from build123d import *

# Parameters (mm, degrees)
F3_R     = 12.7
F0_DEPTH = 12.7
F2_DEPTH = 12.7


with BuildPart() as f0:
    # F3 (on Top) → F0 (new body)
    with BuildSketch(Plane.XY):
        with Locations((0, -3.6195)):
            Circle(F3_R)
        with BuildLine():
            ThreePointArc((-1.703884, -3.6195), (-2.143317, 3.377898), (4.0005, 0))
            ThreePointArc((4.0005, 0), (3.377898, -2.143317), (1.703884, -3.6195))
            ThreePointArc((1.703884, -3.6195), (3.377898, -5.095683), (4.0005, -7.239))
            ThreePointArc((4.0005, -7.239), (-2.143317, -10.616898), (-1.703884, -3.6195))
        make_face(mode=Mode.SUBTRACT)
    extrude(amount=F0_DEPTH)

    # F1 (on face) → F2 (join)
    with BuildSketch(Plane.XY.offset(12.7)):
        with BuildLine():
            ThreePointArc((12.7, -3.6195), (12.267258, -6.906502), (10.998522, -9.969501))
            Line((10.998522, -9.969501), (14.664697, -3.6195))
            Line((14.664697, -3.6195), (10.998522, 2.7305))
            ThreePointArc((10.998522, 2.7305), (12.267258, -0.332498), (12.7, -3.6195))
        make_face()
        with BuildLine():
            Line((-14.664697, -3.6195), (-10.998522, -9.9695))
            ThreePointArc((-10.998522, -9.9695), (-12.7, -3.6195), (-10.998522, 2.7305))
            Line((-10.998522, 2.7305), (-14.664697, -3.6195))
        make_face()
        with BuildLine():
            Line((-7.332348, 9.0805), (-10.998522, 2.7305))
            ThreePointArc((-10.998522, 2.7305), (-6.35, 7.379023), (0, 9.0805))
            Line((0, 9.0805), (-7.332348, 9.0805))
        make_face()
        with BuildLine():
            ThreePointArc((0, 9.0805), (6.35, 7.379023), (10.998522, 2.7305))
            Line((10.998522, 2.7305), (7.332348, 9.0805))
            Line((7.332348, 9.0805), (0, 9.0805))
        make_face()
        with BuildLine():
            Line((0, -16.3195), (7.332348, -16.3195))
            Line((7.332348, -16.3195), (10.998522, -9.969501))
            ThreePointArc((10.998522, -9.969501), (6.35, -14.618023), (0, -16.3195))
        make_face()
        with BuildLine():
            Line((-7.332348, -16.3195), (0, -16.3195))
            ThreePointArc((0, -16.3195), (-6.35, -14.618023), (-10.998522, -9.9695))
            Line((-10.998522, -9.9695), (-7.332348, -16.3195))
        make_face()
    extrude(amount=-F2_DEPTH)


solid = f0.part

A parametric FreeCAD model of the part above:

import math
import FreeCAD as App
import Part
import Sketcher

V = App.Vector
Q = App.Units.Quantity

doc = App.newDocument("Part")
params = doc.addObject("Spreadsheet::Sheet", "Params")
for row, (alias, value) in enumerate([
    ("sketch1_diameter", "1 in"),
    ("pad1_length", "0.5 in"),
    ("sketch2_radius", "0.4999999 in"),
    ("pad2_length", "0.5 in"),
], start=1):
    params.set(f"A{row}", alias)
    params.set(f"B{row}", "=" + value)
    params.setAlias(f"B{row}", alias)

body = doc.addObject("PartDesign::Body", "Body")

sketch1 = body.newObject("Sketcher::SketchObject", "Sketch")
sketch1.AttachmentSupport = (doc.getObject("XY_Plane"), [""])
sketch1.MapMode = "FlatFace"
sketch1.addGeometry([
    Part.Circle(V(0, -3.6, 0), V(0, 0, 1), 12.7),
    Part.ArcOfCircle(Part.Circle(V(0, -7.2, 0), V(0, 0, 1), 4), math.radians(115), math.radians(360)),
    Part.ArcOfCircle(Part.Circle(V(0, 0, 0), V(0, 0, 1), 4), math.radians(0), math.radians(245)),
    Part.ArcOfCircle(Part.Circle(V(0, 0, 0), V(0, 0, 1), 4), math.radians(-65), math.radians(0)),
    Part.ArcOfCircle(Part.Circle(V(0, -7.2, 0), V(0, 0, 1), 4), math.radians(0), math.radians(65)),
], False)
sketch1.addConstraint([
    Sketcher.Constraint("Coincident", 1, 1, 2, 2),
    Sketcher.Constraint("Tangent", 2, 1, 3, 2),
    Sketcher.Constraint("Coincident", 3, 1, 4, 2),
    Sketcher.Constraint("Tangent", 4, 1, 1, 2),
    Sketcher.Constraint("Coincident", 2, 3, -1, 1),
    Sketcher.Constraint("Equal", 1, 2),
    Sketcher.Constraint("Equal", 2, 3),
    Sketcher.Constraint("Equal", 3, 4),
    Sketcher.Constraint("PointOnObject", 0, 3, -2),
    Sketcher.Constraint("PointOnObject", 1, 3, -2),
    Sketcher.Constraint("PointOnObject", 2, 1, -1),
    Sketcher.Constraint("Horizontal", 0, 3, 1, 1),
    Sketcher.Constraint("Horizontal", 1, 3, 4, 1),
    Sketcher.Constraint("Diameter", 0, Q("1 in")),
    Sketcher.Constraint("Radius", 1, Q("0.1575 in")),
    Sketcher.Constraint("DistanceY", 1, 3, -1, 1, Q("0.285 in")),
])
sketch1.setExpression("Constraints[13]", "Params.sketch1_diameter")
pad1 = body.newObject("PartDesign::Pad", "Pad")
pad1.Profile = sketch1
pad1.setExpression("Length", "Params.pad1_length")

sketch2 = body.newObject("Sketcher::SketchObject", "Sketch001")
sketch2.AttachmentSupport = (doc.getObject("XY_Plane"), [""])
sketch2.MapMode = "FlatFace"
sketch2.AttachmentOffset = App.Placement(V(0, 0, 0.5 * 25.4), App.Rotation())
sketch2.addGeometry([
    Part.ArcOfCircle(Part.Circle(V(0, -4, 0), V(0, 0, 1), 13), math.radians(-30), math.radians(0)),
    Part.LineSegment(V(11, -10, 0), V(15, -4, 0)),
    Part.LineSegment(V(15, -4, 0), V(11, 3, 0)),
    Part.ArcOfCircle(Part.Circle(V(0, -4, 0), V(0, 0, 1), 13), math.radians(0), math.radians(30)),
    Part.LineSegment(V(-15, -4, 0), V(-11, -10, 0)),
    Part.ArcOfCircle(Part.Circle(V(0, -4, 0), V(0, 0, 1), 13), math.radians(150), math.radians(210)),
    Part.LineSegment(V(-11, 3, 0), V(-15, -4, 0)),
    Part.LineSegment(V(-7, 9, 0), V(-11, 3, 0)),
    Part.ArcOfCircle(Part.Circle(V(0, -4, 0), V(0, 0, 1), 13), math.radians(90), math.radians(150)),
    Part.LineSegment(V(0, 9, 0), V(-7, 9, 0)),
    Part.ArcOfCircle(Part.Circle(V(0, -4, 0), V(0, 0, 1), 13), math.radians(30), math.radians(90)),
    Part.LineSegment(V(11, 3, 0), V(7, 9, 0)),
    Part.LineSegment(V(7, 9, 0), V(0, 9, 0)),
    Part.LineSegment(V(0, -16, 0), V(7, -16, 0)),
    Part.LineSegment(V(7, -16, 0), V(11, -10, 0)),
    Part.ArcOfCircle(Part.Circle(V(0, -4, 0), V(0, 0, 1), 13), math.radians(-90), math.radians(-30)),
    Part.LineSegment(V(-7, -16, 0), V(0, -16, 0)),
    Part.ArcOfCircle(Part.Circle(V(0, -4, 0), V(0, 0, 1), 13), math.radians(-150), math.radians(-90)),
    Part.LineSegment(V(-11, -10, 0), V(-7, -16, 0)),
], False)
sketch2.addConstraint([
    Sketcher.Constraint("Tangent", 0, 1, 1, 1),
    Sketcher.Constraint("Coincident", 1, 2, 2, 1),
    Sketcher.Constraint("Tangent", 2, 2, 3, 2),
    Sketcher.Constraint("Tangent", 3, 1, 0, 2),
    Sketcher.Constraint("Tangent", 4, 2, 5, 2),
    Sketcher.Constraint("Tangent", 5, 1, 6, 1),
    Sketcher.Constraint("Coincident", 6, 2, 4, 1),
    Sketcher.Constraint("Tangent", 7, 2, 8, 2),
    Sketcher.Constraint("Tangent", 8, 1, 9, 1),
    Sketcher.Constraint("Coincident", 9, 2, 7, 1),
    Sketcher.Constraint("Tangent", 10, 1, 11, 1),
    Sketcher.Constraint("Coincident", 11, 2, 12, 1),
    Sketcher.Constraint("Tangent", 12, 2, 10, 2),
    Sketcher.Constraint("Coincident", 13, 2, 14, 1),
    Sketcher.Constraint("Tangent", 14, 2, 15, 2),
    Sketcher.Constraint("Tangent", 15, 1, 13, 1),
    Sketcher.Constraint("Tangent", 16, 2, 17, 2),
    Sketcher.Constraint("Tangent", 17, 1, 18, 1),
    Sketcher.Constraint("Coincident", 18, 2, 16, 1),
    Sketcher.Constraint("Horizontal", 9),
    Sketcher.Constraint("Horizontal", 12),
    Sketcher.Constraint("Horizontal", 13),
    Sketcher.Constraint("Horizontal", 16),
    Sketcher.Constraint("Coincident", 5, 3, 0, 3),
    Sketcher.Constraint("Coincident", 8, 3, 0, 3),
    Sketcher.Constraint("Coincident", 10, 3, 0, 3),
    Sketcher.Constraint("Coincident", 15, 3, 0, 3),
    Sketcher.Constraint("Coincident", 17, 3, 0, 3),
    Sketcher.Constraint("Coincident", 7, 2, 5, 1),
    Sketcher.Constraint("Coincident", 10, 1, 2, 2),
    Sketcher.Constraint("Coincident", 14, 2, 0, 1),
    Sketcher.Constraint("Coincident", 17, 1, 4, 2),
    Sketcher.Constraint("Equal", 8, 10),
    Sketcher.Constraint("Equal", 10, 15),
    Sketcher.Constraint("Symmetric", 0, 1, 4, 2, -2),
    Sketcher.Constraint("Parallel", 2, 4),
    Sketcher.Constraint("Parallel", 1, 6),
    Sketcher.Constraint("Horizontal", 1, 2, 3, 1),
    Sketcher.Constraint("Equal", 6, 7),
    Sketcher.Constraint("Radius", 0, Q("0.4999999 in")),
    Sketcher.Constraint("DistanceY", 0, 3, -1, 1, Q("0.1425 in")),
])
sketch2.setExpression("Constraints[39]", "Params.sketch2_radius")
pad2 = body.newObject("PartDesign::Pad", "Pad001")
pad2.Profile = sketch2
pad2.setExpression("Length", "Params.pad2_length")
pad2.Reversed = True

doc.recompute()
